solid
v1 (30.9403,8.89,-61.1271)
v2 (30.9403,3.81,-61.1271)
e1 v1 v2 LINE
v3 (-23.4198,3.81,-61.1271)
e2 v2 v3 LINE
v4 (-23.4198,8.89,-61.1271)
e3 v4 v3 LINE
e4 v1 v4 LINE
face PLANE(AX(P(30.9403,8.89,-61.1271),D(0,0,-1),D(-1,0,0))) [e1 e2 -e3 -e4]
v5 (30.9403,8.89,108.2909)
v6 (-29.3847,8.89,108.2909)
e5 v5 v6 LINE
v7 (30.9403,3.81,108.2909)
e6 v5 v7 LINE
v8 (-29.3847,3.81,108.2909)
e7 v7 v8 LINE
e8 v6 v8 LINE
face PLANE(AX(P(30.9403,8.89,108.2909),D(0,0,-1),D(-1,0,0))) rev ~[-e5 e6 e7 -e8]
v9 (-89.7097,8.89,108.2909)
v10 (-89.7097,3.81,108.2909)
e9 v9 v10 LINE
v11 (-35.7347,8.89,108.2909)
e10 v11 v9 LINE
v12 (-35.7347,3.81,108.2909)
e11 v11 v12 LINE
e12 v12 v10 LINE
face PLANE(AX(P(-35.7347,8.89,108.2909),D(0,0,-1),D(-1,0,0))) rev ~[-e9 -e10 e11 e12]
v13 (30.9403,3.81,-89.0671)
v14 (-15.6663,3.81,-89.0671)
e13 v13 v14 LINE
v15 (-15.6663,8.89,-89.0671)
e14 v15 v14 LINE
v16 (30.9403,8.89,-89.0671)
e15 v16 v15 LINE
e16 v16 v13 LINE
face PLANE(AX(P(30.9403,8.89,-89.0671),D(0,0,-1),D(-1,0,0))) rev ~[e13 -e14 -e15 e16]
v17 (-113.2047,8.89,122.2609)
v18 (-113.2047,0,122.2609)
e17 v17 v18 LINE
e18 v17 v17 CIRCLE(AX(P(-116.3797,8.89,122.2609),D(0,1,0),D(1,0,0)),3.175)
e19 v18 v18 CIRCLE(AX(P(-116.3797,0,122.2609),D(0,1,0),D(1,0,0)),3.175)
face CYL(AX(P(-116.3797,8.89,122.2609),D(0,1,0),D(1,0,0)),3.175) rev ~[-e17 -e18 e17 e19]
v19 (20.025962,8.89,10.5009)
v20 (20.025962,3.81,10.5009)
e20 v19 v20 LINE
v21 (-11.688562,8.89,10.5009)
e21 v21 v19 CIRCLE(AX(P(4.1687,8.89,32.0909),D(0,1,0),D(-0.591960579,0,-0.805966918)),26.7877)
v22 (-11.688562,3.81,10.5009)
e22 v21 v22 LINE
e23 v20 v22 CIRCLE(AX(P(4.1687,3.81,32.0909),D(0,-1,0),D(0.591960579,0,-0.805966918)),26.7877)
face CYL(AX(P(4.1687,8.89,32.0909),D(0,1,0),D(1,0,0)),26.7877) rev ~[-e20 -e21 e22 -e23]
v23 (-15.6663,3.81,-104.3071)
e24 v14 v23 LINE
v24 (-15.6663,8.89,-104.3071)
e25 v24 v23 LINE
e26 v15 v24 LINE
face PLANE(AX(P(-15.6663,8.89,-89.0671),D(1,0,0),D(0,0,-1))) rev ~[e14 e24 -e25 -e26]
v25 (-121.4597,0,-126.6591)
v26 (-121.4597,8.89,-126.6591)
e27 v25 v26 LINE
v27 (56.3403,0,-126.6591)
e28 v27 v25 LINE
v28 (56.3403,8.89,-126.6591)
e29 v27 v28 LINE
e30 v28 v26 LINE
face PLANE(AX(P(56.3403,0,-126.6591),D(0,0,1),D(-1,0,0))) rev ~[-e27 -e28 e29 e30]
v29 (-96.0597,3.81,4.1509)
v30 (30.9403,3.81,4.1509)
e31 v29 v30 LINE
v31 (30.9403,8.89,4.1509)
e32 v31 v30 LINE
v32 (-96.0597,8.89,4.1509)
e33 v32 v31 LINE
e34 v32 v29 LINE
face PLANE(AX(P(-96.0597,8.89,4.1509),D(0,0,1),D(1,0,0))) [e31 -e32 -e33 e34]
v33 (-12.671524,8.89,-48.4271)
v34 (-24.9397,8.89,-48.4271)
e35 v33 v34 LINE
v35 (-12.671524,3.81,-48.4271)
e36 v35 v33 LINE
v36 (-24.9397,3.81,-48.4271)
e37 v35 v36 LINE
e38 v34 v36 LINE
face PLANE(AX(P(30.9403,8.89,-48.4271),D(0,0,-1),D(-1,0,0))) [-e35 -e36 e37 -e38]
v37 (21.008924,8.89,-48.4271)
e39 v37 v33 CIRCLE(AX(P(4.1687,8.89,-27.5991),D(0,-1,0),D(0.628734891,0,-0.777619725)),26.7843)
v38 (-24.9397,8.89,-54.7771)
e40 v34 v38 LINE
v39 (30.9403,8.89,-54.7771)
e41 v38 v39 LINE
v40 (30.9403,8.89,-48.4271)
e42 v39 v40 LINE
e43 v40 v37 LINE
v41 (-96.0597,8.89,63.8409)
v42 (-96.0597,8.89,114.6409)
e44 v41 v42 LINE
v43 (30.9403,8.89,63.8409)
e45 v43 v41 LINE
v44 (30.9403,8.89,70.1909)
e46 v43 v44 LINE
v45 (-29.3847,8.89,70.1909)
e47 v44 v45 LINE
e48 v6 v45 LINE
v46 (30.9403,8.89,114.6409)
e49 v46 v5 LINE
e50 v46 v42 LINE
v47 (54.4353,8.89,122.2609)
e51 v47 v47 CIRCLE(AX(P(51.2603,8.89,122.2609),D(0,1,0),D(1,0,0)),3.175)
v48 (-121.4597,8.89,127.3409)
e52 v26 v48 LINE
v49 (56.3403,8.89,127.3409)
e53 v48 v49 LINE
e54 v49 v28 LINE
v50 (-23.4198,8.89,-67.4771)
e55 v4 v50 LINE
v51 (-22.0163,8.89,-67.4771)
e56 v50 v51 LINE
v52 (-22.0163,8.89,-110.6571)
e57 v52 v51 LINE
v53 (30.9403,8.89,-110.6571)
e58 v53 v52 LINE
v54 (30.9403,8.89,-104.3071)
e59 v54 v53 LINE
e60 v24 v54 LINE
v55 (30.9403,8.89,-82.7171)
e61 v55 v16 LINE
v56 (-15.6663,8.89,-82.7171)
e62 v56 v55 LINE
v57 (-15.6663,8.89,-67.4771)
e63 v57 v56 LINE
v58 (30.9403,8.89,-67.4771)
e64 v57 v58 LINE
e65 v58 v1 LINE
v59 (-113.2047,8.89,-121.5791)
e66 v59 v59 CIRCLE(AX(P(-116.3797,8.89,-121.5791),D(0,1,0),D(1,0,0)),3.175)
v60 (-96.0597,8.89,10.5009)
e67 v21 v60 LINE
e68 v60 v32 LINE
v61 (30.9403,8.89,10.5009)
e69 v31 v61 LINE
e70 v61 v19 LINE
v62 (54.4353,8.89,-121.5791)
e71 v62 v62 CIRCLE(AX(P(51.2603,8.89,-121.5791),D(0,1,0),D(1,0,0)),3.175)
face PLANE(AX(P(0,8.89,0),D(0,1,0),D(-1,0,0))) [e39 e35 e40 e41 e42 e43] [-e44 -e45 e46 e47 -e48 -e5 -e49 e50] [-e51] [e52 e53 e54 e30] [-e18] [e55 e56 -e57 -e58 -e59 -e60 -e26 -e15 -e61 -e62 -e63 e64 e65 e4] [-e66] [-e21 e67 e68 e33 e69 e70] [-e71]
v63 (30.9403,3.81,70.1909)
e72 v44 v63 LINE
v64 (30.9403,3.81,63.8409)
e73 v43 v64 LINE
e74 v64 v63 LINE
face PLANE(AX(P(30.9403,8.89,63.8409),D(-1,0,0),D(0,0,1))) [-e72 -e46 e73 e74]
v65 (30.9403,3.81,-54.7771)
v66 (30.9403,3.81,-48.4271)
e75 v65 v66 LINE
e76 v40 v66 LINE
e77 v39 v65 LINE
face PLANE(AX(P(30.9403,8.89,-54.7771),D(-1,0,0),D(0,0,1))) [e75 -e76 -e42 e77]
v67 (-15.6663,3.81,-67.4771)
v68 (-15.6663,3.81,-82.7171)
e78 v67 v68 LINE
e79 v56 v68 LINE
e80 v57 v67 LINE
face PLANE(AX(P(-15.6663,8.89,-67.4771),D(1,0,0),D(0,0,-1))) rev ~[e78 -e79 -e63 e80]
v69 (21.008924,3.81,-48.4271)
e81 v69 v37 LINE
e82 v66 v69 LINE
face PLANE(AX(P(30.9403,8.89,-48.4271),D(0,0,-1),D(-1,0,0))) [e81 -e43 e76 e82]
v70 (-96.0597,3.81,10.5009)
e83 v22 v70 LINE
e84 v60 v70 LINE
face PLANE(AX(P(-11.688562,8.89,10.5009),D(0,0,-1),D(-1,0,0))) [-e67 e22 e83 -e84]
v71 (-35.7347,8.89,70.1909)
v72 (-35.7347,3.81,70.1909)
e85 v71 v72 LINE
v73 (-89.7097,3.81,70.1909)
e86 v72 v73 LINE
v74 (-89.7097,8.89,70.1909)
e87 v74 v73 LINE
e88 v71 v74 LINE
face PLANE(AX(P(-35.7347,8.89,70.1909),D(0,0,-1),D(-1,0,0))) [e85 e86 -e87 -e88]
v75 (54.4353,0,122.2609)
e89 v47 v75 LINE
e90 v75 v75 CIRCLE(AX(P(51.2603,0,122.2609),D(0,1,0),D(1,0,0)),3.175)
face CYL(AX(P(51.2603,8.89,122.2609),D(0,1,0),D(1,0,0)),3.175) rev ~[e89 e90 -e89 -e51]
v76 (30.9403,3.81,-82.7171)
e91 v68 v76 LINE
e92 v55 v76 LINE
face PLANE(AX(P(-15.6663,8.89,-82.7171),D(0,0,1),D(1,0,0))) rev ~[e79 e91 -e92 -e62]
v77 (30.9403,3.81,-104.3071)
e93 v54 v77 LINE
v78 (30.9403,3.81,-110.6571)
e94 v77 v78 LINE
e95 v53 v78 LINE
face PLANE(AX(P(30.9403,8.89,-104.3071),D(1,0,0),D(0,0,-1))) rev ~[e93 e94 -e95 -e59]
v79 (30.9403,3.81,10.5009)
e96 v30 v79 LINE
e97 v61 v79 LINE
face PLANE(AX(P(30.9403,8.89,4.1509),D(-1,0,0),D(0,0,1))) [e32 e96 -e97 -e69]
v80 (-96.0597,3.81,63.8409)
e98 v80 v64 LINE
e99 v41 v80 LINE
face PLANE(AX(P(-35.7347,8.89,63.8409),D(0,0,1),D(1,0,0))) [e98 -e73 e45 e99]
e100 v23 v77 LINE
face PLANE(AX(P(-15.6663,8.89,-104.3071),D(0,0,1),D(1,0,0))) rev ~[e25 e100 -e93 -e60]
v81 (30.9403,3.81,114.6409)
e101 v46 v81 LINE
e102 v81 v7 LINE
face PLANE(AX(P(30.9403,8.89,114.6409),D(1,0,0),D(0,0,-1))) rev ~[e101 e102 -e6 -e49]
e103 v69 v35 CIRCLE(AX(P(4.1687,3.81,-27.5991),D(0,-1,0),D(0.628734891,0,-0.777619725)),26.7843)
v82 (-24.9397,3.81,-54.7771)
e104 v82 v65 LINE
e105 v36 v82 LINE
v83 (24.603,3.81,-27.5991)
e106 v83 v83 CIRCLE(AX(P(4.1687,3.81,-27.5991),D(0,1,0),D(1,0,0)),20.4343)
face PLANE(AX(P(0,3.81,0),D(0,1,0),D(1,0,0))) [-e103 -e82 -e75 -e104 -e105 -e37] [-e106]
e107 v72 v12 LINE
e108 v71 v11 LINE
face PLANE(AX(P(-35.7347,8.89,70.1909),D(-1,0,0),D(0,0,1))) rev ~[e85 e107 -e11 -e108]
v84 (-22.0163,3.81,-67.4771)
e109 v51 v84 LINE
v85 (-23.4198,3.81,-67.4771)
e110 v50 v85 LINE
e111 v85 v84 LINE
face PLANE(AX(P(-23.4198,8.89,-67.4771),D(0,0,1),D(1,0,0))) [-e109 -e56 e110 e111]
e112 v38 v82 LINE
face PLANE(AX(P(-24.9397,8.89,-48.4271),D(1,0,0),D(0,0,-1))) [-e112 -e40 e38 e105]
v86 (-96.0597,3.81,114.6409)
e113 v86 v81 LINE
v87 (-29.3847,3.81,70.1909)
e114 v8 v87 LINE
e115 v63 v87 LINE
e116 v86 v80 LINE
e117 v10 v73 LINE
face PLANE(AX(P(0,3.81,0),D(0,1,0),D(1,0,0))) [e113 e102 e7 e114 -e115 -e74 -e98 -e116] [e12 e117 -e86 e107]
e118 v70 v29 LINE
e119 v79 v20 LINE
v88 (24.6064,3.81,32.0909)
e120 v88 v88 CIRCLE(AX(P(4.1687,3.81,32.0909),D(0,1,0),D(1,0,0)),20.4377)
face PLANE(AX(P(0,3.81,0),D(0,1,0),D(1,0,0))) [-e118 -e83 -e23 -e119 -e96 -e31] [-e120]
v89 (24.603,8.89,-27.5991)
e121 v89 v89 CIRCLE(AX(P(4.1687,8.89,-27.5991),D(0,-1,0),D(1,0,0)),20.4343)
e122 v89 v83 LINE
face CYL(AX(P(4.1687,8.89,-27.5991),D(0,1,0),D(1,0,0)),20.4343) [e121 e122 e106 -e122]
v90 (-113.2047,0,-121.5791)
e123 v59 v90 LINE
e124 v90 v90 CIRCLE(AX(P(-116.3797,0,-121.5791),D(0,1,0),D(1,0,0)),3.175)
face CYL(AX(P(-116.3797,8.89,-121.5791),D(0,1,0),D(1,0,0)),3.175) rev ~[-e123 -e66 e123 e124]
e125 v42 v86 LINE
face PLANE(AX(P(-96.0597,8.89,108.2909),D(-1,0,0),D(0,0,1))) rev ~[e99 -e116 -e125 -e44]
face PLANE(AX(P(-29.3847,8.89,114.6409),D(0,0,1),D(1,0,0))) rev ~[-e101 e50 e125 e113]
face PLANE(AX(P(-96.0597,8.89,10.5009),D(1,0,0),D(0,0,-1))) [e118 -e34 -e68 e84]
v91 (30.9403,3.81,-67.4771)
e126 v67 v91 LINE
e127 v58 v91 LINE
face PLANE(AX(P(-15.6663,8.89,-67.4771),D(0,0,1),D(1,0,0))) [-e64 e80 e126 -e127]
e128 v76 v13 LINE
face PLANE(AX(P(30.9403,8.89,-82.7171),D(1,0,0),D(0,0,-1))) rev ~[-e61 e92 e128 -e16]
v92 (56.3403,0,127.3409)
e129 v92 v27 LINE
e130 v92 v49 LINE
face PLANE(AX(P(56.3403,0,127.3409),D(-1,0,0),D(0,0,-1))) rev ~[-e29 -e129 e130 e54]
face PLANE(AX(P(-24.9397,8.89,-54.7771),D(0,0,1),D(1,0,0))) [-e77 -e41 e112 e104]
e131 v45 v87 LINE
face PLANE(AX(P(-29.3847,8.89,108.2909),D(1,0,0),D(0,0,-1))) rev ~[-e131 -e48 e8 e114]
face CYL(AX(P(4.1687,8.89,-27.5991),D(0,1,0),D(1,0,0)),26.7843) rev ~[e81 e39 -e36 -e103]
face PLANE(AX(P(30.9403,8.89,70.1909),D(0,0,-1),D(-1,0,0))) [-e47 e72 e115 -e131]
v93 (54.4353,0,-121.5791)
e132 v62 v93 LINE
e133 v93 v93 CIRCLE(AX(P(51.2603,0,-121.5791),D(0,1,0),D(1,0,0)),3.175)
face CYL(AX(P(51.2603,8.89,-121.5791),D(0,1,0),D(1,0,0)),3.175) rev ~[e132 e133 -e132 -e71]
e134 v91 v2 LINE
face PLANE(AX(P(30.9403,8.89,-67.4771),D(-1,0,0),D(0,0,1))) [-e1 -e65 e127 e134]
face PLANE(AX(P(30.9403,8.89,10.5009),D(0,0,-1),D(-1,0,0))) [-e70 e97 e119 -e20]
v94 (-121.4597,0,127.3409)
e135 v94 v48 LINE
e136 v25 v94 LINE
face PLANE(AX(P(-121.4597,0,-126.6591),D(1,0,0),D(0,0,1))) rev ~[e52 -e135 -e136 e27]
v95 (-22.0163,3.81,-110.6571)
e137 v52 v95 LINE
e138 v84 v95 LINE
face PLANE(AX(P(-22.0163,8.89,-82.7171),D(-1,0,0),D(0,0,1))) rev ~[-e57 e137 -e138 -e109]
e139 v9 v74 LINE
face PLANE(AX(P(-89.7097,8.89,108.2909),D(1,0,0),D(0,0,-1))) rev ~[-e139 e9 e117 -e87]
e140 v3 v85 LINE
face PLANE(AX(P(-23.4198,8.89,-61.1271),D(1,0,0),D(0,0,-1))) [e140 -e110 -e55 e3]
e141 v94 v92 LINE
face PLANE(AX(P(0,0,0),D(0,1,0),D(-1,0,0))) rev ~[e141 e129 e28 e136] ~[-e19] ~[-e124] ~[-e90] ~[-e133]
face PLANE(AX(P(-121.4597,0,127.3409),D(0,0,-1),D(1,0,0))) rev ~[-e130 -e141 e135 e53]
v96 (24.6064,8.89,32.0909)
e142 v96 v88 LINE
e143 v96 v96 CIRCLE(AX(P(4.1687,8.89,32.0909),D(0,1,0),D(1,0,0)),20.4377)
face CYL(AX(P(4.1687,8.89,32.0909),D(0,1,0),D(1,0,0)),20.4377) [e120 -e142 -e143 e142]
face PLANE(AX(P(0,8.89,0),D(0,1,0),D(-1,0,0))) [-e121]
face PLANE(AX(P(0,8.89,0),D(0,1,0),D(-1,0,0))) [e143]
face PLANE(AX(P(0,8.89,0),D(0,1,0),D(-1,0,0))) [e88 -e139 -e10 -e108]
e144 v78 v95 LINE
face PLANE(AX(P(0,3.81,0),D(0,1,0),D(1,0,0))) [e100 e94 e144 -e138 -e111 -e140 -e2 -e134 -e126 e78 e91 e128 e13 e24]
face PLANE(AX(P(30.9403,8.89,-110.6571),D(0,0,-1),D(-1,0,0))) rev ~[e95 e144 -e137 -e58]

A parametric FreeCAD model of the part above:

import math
import FreeCAD as App
import Part
import Sketcher

V = App.Vector
Q = App.Units.Quantity


def add_polygon(sketch, points):
    """Adds a closed chain of lines whose ends are joined by coincident constraints."""
    first, n = sketch.GeometryCount, len(points)
    for a, b in zip(points, points[1:] + points[:1]):
        sketch.addGeometry(Part.LineSegment(App.Vector(*a, 0), App.Vector(*b, 0)), False)
    for i in range(n):
        sketch.addConstraint(Sketcher.Constraint("Coincident", first + i, 2, first + (i + 1) % n, 1))

doc = App.newDocument("Part")
body = doc.addObject("PartDesign::Body", "Body")

sketch1 = body.newObject("Sketcher::SketchObject", "Sketch")
sketch1.AttachmentSupport = (doc.getObject("XZ_Plane"), [""])
sketch1.MapMode = "FlatFace"
add_polygon(sketch1, [(-121, -127), (-121, 127), (56, 127), (56, -127)])
sketch1.addConstraint([
    Sketcher.Constraint("Vertical", 0),
    Sketcher.Constraint("Horizontal", 1),
    Sketcher.Constraint("Vertical", 2),
    Sketcher.Constraint("Horizontal", 3),
    Sketcher.Constraint("DistanceX", 1, 1, 1, 2, Q("7 in")),
    Sketcher.Constraint("DistanceY", 0, 1, 0, 2, Q("10 in")),
    Sketcher.Constraint("DistanceX", 0, 2, -1, 1, Q("121.4597 mm")),
    Sketcher.Constraint("DistanceY", -1, 1, 0, 2, Q("127.341 mm")),
])
pad1 = body.newObject("PartDesign::Pad", "Pad")
pad1.Profile = sketch1
pad1.Length = Q("0.35 in")
pad1.Reversed = True

sketch2 = body.newObject("Sketcher::SketchObject", "Sketch001")
sketch2.AttachmentSupport = (doc.getObject("XZ_Plane"), [""])
sketch2.MapMode = "FlatFace"
sketch2.AttachmentOffset = App.Placement(V(0, 0, -0.35 * 25.4), App.Rotation())
add_polygon(sketch2, [(31, 115), (31, 108), (-29, 108), (-29, 70), (31, 70), (31, 64), (-96, 64), (-96, 115)])
add_polygon(sketch2, [(-36, 108), (-90, 108), (-90, 70), (-36, 70)])
sketch2.addConstraint([
    Sketcher.Constraint("Vertical", 0),
    Sketcher.Constraint("Horizontal", 1),
    Sketcher.Constraint("Vertical", 2),
    Sketcher.Constraint("Horizontal", 3),
    Sketcher.Constraint("Vertical", 4),
    Sketcher.Constraint("Horizontal", 5),
    Sketcher.Constraint("Vertical", 6),
    Sketcher.Constraint("Horizontal", 7),
    Sketcher.Constraint("Horizontal", 8),
    Sketcher.Constraint("Vertical", 9),
    Sketcher.Constraint("Horizontal", 10),
    Sketcher.Constraint("Vertical", 11),
    Sketcher.Constraint("Horizontal", 1, 2, 8, 2),
    Sketcher.Constraint("Horizontal", 3, 2, 9, 2),
    Sketcher.Constraint("Vertical", 0, 2, 3, 2),
    Sketcher.Constraint("Equal", 0, 4),
    Sketcher.Constraint("DistanceX", 5, 2, 5, 1, Q("5 in")),
    Sketcher.Constraint("DistanceY", 6, 1, 6, 2, Q("2 in")),
    Sketcher.Constraint("DistanceY", 0, 2, 0, 1, Q("0.25 in")),
    Sketcher.Constraint("DistanceX", 1, 2, 1, 1, Q("2.375 in")),
    Sketcher.Constraint("DistanceX", 6, 2, 8, 2, Q("0.25 in")),
    Sketcher.Constraint("DistanceX", 10, 2, 2, 2, Q("0.25 in")),
    Sketcher.Constraint("DistanceX", -1, 1, 0, 2, Q("30.9403 mm")),
    Sketcher.Constraint("DistanceY", -1, 1, 0, 2, Q("108.291 mm")),
])
pocket1 = body.newObject("PartDesign::Pocket", "Pocket")
pocket1.Profile = sketch2
pocket1.Length = Q("0.2 in")
pocket1.Reversed = True

sketch3 = body.newObject("Sketcher::SketchObject", "Sketch002")
sketch3.AttachmentSupport = (doc.getObject("XZ_Plane"), [""])
sketch3.MapMode = "FlatFace"
sketch3.AttachmentOffset = App.Placement(V(0, 0, -0.35 * 25.4), App.Rotation())
sketch3.addGeometry([
    Part.LineSegment(V(31, 4, 0), V(-96, 4, 0)),
    Part.LineSegment(V(-96, 4, 0), V(-96, 11, 0)),
    Part.LineSegment(V(-96, 11, 0), V(-12, 11, 0)),
    Part.ArcOfCircle(Part.Circle(V(4, 32, 0), V(0, 0, 1), 27), math.radians(-54), math.radians(234)),
    Part.LineSegment(V(20, 11, 0), V(31, 11, 0)),
    Part.LineSegment(V(31, 11, 0), V(31, 4, 0)),
    Part.Circle(V(4, 32, 0), V(0, 0, 1), 20),
], False)
sketch3.addConstraint([
    Sketcher.Constraint("Coincident", 0, 2, 1, 1),
    Sketcher.Constraint("Coincident", 1, 2, 2, 1),
    Sketcher.Constraint("Coincident", 2, 2, 3, 2),
    Sketcher.Constraint("Coincident", 3, 1, 4, 1),
    Sketcher.Constraint("Coincident", 4, 2, 5, 1),
    Sketcher.Constraint("Coincident", 5, 2, 0, 1),
    Sketcher.Constraint("Horizontal", 0),
    Sketcher.Constraint("Vertical", 1),
    Sketcher.Constraint("Horizontal", 2),
    Sketcher.Constraint("Horizontal", 4),
    Sketcher.Constraint("Vertical", 5),
    Sketcher.Constraint("Coincident", 6, 3, 3, 3),
    Sketcher.Constraint("Horizontal", 2, 2, 3, 1),
    Sketcher.Constraint("DistanceX", 0, 2, 0, 1, Q("5 in")),
    Sketcher.Constraint("DistanceY", 1, 1, 1, 2, Q("0.25 in")),
    Sketcher.Constraint("DistanceY", 1, 2, 3, 3, Q("0.85 in")),
    Sketcher.Constraint("DistanceX", 0, 2, 3, 3, Q("3.946 in")),
    Sketcher.Constraint("Diameter", 6, Q("40.8754 mm")),
    Sketcher.Constraint("Radius", 3, Q("26.7877 mm")),
    Sketcher.Constraint("DistanceX", -1, 1, 3, 3, Q("4.1687 mm")),
    Sketcher.Constraint("DistanceY", -1, 1, 3, 3, Q("32.091 mm")),
])
pocket2 = body.newObject("PartDesign::Pocket", "Pocket001")
pocket2.Profile = sketch3
pocket2.Length = Q("0.2 in")
pocket2.Reversed = True

sketch4 = body.newObject("Sketcher::SketchObject", "Sketch003")
sketch4.AttachmentSupport = (doc.getObject("XZ_Plane"), [""])
sketch4.MapMode = "FlatFace"
sketch4.AttachmentOffset = App.Placement(V(0, 0, -0.35 * 25.4), App.Rotation())
sketch4.addGeometry([
    Part.Circle(V(4, -28, 0), V(0, 0, 1), 27),
    Part.Circle(V(4, -28, 0), V(0, 0, 1), 20),
], False)
sketch4.addConstraint([
    Sketcher.Constraint("Coincident", 1, 3, 0, 3),
    Sketcher.Constraint("Diameter", 0, Q("2.109 in")),
    Sketcher.Constraint("Diameter", 1, Q("1.609 in")),
    Sketcher.Constraint("DistanceX", -1, 1, 0, 3, Q("4.1687 mm")),
    Sketcher.Constraint("DistanceY", 0, 3, -1, 1, Q("27.599 mm")),
])
pocket3 = body.newObject("PartDesign::Pocket", "Pocket002")
pocket3.Profile = sketch4
pocket3.Length = Q("0.2 in")
pocket3.Reversed = True

sketch5 = body.newObject("Sketcher::SketchObject", "Sketch004")
sketch5.AttachmentSupport = (doc.getObject("XZ_Plane"), [""])
sketch5.MapMode = "FlatFace"
sketch5.AttachmentOffset = App.Placement(V(0, 0, -0.35 * 25.4), App.Rotation())
add_polygon(sketch5, [(-25, -48), (31, -48), (31, -55), (-25, -55)])
sketch5.addConstraint([
    Sketcher.Constraint("Horizontal", 0),
    Sketcher.Constraint("Vertical", 1),
    Sketcher.Constraint("Horizontal", 2),
    Sketcher.Constraint("Vertical", 3),
    Sketcher.Constraint("DistanceX", 0, 1, 0, 2, Q("2.2 in")),
    Sketcher.Constraint("DistanceY", 1, 2, 1, 1, Q("0.25 in")),
    Sketcher.Constraint("DistanceX", -1, 1, 0, 2, Q("30.9403 mm")),
    Sketcher.Constraint("DistanceY", 0, 2, -1, 1, Q("48.427 mm")),
])
pocket4 = body.newObject("PartDesign::Pocket", "Pocket003")
pocket4.Profile = sketch5
pocket4.Length = Q("0.2 in")
pocket4.Reversed = True

sketch6 = body.newObject("Sketcher::SketchObject", "Sketch005")
sketch6.AttachmentSupport = (doc.getObject("XZ_Plane"), [""])
sketch6.MapMode = "FlatFace"
sketch6.AttachmentOffset = App.Placement(V(0, 0, -0.35 * 25.4), App.Rotation())
add_polygon(sketch6, [(-23.4, -61.1), (30.9, -61.1), (30.9, -67.5), (-15.7, -67.5), (-15.7, -82.7), (30.9, -82.7), (30.9, -89.1), (-15.7, -89.1), (-15.7, -104.3), (30.9, -104.3), (30.9, -110.7), (-22, -110.7), (-22, -67.5), (-23.4, -67.5)])
sketch6.addConstraint([
    Sketcher.Constraint("Horizontal", 0),
    Sketcher.Constraint("Vertical", 1),
    Sketcher.Constraint("Horizontal", 2),
    Sketcher.Constraint("Vertical", 3),
    Sketcher.Constraint("Horizontal", 4),
    Sketcher.Constraint("Vertical", 5),
    Sketcher.Constraint("Horizontal", 6),
    Sketcher.Constraint("Vertical", 7),
    Sketcher.Constraint("Horizontal", 8),
    Sketcher.Constraint("Vertical", 9),
    Sketcher.Constraint("Horizontal", 10),
    Sketcher.Constraint("Vertical", 11),
    Sketcher.Constraint("Horizontal", 12),
    Sketcher.Constraint("Vertical", 13),
    Sketcher.Constraint("Horizontal", 2, 2, 11, 2),
    Sketcher.Constraint("Vertical", 1, 2, 4, 2),
    Sketcher.Constraint("Vertical", 3, 2, 6, 2),
    Sketcher.Constraint("Vertical", 5, 2, 8, 2),
    Sketcher.Constraint("Equal", 1, 5),
    Sketcher.Constraint("Equal", 3, 7),
    Sketcher.Constraint("Equal", 5, 9),
    Sketcher.Constraint("DistanceY", 3, 2, 3, 1, Q("0.6 in")),
    Sketcher.Constraint("DistanceY", 1, 2, 1, 1, Q("0.25 in")),
    Sketcher.Constraint("DistanceX", 10, 2, 7, 2, Q("0.25 in")),
    Sketcher.Constraint("DistanceX", 2, 2, 2, 1, Q("1.8349 in")),
    Sketcher.Constraint("DistanceX", 0, 1, 0, 2, Q("54.36 mm")),
    Sketcher.Constraint("DistanceX", -1, 1, 0, 2, Q("30.9403 mm")),
    Sketcher.Constraint("DistanceY", 0, 2, -1, 1, Q("61.127 mm")),
])
pocket5 = body.newObject("PartDesign::Pocket", "Pocket004")
pocket5.Profile = sketch6
pocket5.Length = Q("0.2 in")
pocket5.Reversed = True

sketch7 = body.newObject("Sketcher::SketchObject", "Sketch006")
sketch7.AttachmentSupport = (doc.getObject("XZ_Plane"), [""])
sketch7.MapMode = "FlatFace"
sketch7.AttachmentOffset = App.Placement(V(0, 0, -0.35 * 25.4), App.Rotation())
sketch7.addGeometry([
    Part.Circle(V(51.3, 122.3, 0), V(0, 0, 1), 3.2),
    Part.Circle(V(-116.4, -121.6, 0), V(0, 0, 1), 3.2),
    Part.Circle(V(51.3, -121.6, 0), V(0, 0, 1), 3.2),
], False)
sketch7.addConstraint([
    Sketcher.Constraint("Equal", 0, 1),
    Sketcher.Constraint("Equal", 1, 2),
    Sketcher.Constraint("Horizontal", 1, 3, 2, 3),
    Sketcher.Constraint("Vertical", 0, 3, 2, 3),
    Sketcher.Constraint("Diameter", 0, Q("0.25 in")),
    Sketcher.Constraint("DistanceX", 1, 3, 0, 3, Q("6.6 in")),
    Sketcher.Constraint("DistanceY", 1, 3, 0, 3, Q("9.6 in")),
    Sketcher.Constraint("DistanceX", -1, 1, 0, 3, Q("51.2603 mm")),
    Sketcher.Constraint("DistanceY", -1, 1, 0, 3, Q("122.261 mm")),
])
pocket6 = body.newObject("PartDesign::Pocket", "Pocket005")
pocket6.Profile = sketch7
pocket6.Length = Q("1 in")
pocket6.Reversed = True

sketch8 = body.newObject("Sketcher::SketchObject", "Sketch007")
sketch8.AttachmentSupport = (doc.getObject("XZ_Plane"), [""])
sketch8.MapMode = "FlatFace"
sketch8.AttachmentOffset = App.Placement(V(0, 0, -0.35 * 25.4), App.Rotation())
sketch8.addGeometry(Part.Circle(V(-116.4, 122.3, 0), V(0, 0, 1), 3.2), False)
sketch8.addConstraint([
    Sketcher.Constraint("Diameter", 0, Q("0.25 in")),
    Sketcher.Constraint("DistanceX", 0, 3, -1, 1, Q("116.3797 mm")),
    Sketcher.Constraint("DistanceY", -1, 1, 0, 3, Q("122.261 mm")),
])
pocket7 = body.newObject("PartDesign::Pocket", "Pocket006")
pocket7.Profile = sketch8
pocket7.Length = Q("1 in")
pocket7.Reversed = True

doc.recompute()
